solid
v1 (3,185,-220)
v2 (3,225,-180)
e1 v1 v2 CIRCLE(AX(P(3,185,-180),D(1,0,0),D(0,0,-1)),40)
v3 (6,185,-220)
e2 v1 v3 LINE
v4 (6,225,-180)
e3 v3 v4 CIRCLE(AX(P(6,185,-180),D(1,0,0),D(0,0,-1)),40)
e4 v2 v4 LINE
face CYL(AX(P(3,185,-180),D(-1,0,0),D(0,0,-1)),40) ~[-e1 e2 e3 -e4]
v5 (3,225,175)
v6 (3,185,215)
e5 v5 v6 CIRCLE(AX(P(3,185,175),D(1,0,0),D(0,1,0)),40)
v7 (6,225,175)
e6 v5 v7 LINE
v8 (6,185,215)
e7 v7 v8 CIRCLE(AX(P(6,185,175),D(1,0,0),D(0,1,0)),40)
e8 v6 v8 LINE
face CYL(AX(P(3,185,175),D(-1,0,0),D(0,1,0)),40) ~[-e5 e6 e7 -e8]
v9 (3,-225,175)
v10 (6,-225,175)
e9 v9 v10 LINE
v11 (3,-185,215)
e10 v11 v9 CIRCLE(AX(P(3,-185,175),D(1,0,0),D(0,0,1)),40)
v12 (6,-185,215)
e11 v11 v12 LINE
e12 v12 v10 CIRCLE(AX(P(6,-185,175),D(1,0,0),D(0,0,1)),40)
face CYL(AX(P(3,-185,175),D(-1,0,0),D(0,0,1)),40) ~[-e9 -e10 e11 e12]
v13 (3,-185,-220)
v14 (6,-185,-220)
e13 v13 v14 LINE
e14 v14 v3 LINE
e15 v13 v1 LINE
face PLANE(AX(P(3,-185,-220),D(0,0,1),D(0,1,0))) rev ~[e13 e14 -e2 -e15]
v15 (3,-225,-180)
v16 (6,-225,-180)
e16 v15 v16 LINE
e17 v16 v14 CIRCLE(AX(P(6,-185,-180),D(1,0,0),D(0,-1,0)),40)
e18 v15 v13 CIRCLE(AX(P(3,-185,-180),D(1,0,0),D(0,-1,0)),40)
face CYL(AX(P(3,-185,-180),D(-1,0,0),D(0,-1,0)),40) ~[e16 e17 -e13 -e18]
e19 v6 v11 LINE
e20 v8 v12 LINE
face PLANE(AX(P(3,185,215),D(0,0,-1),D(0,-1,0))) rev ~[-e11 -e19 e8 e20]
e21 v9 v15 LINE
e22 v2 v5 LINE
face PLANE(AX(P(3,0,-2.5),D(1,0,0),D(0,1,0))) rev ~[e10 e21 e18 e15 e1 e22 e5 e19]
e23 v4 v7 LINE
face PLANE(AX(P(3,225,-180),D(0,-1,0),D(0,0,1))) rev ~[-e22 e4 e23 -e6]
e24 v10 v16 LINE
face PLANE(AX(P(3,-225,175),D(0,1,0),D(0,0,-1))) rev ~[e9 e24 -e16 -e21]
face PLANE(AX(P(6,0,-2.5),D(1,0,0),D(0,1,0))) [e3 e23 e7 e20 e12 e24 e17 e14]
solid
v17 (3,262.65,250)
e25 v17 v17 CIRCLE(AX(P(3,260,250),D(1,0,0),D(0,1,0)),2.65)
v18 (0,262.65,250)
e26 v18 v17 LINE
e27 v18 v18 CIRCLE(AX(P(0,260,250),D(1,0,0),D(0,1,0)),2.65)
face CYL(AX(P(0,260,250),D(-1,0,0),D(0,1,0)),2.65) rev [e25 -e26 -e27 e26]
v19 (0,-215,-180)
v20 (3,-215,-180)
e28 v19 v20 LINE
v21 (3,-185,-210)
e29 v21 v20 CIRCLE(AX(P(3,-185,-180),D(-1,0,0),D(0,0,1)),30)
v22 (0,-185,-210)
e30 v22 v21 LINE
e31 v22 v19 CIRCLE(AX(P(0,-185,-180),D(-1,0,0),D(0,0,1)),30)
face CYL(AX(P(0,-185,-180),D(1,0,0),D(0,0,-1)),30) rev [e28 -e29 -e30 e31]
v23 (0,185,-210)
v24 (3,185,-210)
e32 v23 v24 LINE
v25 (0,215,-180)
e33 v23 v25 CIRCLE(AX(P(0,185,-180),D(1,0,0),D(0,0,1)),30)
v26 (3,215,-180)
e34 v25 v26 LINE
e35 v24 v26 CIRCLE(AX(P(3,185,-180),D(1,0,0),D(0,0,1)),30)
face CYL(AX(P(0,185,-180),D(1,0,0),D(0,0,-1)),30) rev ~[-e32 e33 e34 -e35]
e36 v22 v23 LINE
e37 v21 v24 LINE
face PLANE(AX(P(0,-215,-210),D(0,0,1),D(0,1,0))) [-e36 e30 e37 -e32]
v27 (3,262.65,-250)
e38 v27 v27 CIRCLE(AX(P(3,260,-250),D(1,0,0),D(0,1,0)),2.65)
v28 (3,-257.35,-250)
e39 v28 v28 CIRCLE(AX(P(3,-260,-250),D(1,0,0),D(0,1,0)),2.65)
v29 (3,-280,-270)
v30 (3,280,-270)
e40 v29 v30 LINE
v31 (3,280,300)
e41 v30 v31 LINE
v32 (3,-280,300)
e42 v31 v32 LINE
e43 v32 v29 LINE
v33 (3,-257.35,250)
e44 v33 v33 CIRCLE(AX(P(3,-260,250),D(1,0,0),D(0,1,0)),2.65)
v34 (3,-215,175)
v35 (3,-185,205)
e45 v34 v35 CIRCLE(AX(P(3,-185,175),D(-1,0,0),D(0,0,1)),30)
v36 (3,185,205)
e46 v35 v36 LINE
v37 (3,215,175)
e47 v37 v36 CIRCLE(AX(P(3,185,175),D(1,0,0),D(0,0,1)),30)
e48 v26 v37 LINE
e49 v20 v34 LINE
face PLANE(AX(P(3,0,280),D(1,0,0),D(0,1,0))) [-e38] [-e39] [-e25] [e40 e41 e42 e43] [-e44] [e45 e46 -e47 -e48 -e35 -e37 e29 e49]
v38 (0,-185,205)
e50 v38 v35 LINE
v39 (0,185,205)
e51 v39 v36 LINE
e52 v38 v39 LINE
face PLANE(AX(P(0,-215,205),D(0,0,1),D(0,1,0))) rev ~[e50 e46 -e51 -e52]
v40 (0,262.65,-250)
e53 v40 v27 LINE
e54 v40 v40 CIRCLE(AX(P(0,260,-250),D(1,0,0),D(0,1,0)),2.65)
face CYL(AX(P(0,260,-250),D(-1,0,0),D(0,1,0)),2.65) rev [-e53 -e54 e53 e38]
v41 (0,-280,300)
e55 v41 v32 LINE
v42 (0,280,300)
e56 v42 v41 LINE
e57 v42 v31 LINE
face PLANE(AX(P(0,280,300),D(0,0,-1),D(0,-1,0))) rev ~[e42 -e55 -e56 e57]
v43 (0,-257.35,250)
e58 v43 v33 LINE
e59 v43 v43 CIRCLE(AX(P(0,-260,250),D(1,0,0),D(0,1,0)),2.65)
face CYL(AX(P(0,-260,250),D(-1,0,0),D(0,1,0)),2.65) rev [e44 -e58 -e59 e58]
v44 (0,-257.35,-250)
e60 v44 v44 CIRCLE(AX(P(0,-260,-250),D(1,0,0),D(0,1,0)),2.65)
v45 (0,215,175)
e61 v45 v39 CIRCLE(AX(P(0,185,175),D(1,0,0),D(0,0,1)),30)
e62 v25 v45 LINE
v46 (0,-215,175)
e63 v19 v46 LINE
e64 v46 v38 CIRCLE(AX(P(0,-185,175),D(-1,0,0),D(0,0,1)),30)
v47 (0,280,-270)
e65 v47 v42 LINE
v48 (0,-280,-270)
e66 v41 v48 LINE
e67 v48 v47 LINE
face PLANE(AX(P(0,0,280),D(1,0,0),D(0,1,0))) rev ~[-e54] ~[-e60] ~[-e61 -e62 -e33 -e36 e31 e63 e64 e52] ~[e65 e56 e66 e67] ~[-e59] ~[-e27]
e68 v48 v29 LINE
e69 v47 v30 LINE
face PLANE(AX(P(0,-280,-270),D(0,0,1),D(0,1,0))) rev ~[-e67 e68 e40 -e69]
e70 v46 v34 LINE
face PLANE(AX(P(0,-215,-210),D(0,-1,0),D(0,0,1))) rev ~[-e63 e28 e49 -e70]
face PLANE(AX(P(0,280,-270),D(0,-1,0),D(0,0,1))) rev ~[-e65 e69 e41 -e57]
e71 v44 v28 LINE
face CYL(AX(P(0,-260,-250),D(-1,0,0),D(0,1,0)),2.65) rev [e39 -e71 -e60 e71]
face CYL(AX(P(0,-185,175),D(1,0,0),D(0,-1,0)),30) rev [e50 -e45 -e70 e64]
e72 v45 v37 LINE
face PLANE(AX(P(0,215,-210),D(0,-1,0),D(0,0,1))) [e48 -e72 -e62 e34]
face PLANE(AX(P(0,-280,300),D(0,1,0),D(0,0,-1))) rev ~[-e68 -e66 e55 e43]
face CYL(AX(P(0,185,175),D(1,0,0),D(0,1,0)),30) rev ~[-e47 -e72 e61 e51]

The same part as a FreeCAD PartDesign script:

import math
import FreeCAD as App
import Part
import Sketcher
Q = App.Units.Quantity


def edges_at(feature, points):
    """Names of the edges that pass closest to the given points."""
    edges = feature.Shape.Edges
    near = lambda p: min(range(len(edges)), key=lambda i: edges[i].distToShape(Part.Vertex(*p))[0])
    return sorted({f"Edge{near(p) + 1}" for p in points})

doc = App.newDocument("Part")
body = doc.addObject("PartDesign::Body", "Body")

# Sketch on YZ plane
sketch1 = body.newObject("Sketcher::SketchObject", "Sketch")
sketch1.AttachmentSupport = (doc.getObject("YZ_Plane"), [""])
sketch1.MapMode = "FlatFace"
sketch1.addGeometry([
    Part.LineSegment(App.Vector(-280, 300, 0), App.Vector(-280, -270, 0)),  # 0
    Part.LineSegment(App.Vector(-280, -270, 0), App.Vector(280, -270, 0)),  # 1
    Part.LineSegment(App.Vector(280, -270, 0), App.Vector(280, 300, 0)),  # 2
    Part.LineSegment(App.Vector(280, 300, 0), App.Vector(-280, 300, 0)),  # 3
    Part.Circle(App.Vector(-260, -250, 0), App.Vector(0, 0, 1), 2.65),  # 4
    Part.Circle(App.Vector(260, -250, 0), App.Vector(0, 0, 1), 2.65),  # 5
    Part.LineSegment(App.Vector(215, -210, 0), App.Vector(-215, -210, 0)),  # 6
    Part.LineSegment(App.Vector(-215, -210, 0), App.Vector(-215, 205, 0)),  # 7
    Part.LineSegment(App.Vector(-215, 205, 0), App.Vector(215, 205, 0)),  # 8
    Part.LineSegment(App.Vector(215, 205, 0), App.Vector(215, -210, 0)),  # 9
    Part.Circle(App.Vector(-260, 250, 0), App.Vector(0, 0, 1), 2.65),  # 10
    Part.Circle(App.Vector(260, 250, 0), App.Vector(0, 0, 1), 2.65),  # 11
], False)
sketch1.addConstraint([
    Sketcher.Constraint("Coincident", 0, 2, 1, 1),
    Sketcher.Constraint("Coincident", 1, 2, 2, 1),
    Sketcher.Constraint("Coincident", 2, 2, 3, 1),
    Sketcher.Constraint("Coincident", 3, 2, 0, 1),
    Sketcher.Constraint("Coincident", 6, 2, 7, 1),
    Sketcher.Constraint("Coincident", 7, 2, 8, 1),
    Sketcher.Constraint("Coincident", 8, 2, 9, 1),
    Sketcher.Constraint("Coincident", 9, 2, 6, 1),
    Sketcher.Constraint("Vertical", 0),
    Sketcher.Constraint("Horizontal", 1),
    Sketcher.Constraint("Vertical", 2),
    Sketcher.Constraint("Horizontal", 3),
    Sketcher.Constraint("Horizontal", 6),
    Sketcher.Constraint("Vertical", 7),
    Sketcher.Constraint("Horizontal", 8),
    Sketcher.Constraint("Vertical", 9),
    Sketcher.Constraint("Equal", 4, 5),
    Sketcher.Constraint("Equal", 5, 10),
    Sketcher.Constraint("Equal", 10, 11),
    Sketcher.Constraint("Symmetric", 5, 3, 10, 3, -1, 1),
    Sketcher.Constraint("Symmetric", 4, 3, 11, 3, -1, 1),
    Sketcher.Constraint("Symmetric", 4, 3, 5, 3, -2),
    Sketcher.Constraint("Diameter", 4, Q("5.3 mm")),
    Sketcher.Constraint("DistanceX", 1, 1, 1, 2, Q("560 mm")),
    Sketcher.Constraint("DistanceX", 6, 2, 6, 1, Q("430 mm")),
    Sketcher.Constraint("DistanceY", 0, 2, 0, 1, Q("570 mm")),
    Sketcher.Constraint("DistanceY", 7, 1, 7, 2, Q("415 mm")),
    Sketcher.Constraint("DistanceX", 4, 3, -1, 1, Q("260 mm")),
    Sketcher.Constraint("DistanceY", 4, 3, -1, 1, Q("250 mm")),
    Sketcher.Constraint("DistanceX", 0, 2, -1, 1, Q("280 mm")),
    Sketcher.Constraint("DistanceY", 0, 2, -1, 1, Q("270 mm")),
    Sketcher.Constraint("DistanceX", 6, 2, -1, 1, Q("215 mm")),
    Sketcher.Constraint("DistanceY", 6, 2, -1, 1, Q("210 mm")),
])
pad1 = body.newObject("PartDesign::Pad", "Pad")
pad1.Profile = sketch1
pad1.Length = 3
doc.recompute()

fillet = body.newObject("PartDesign::Fillet", "Fillet")
fillet.Base = (pad1, edges_at(pad1, [
    (1.5, -215, 205),
    (1.5, 215, 205),
    (1.5, 215, -210),
    (1.5, -215, -210),
]))
fillet.Radius = 30
body2 = doc.addObject("PartDesign::Body", "Body001")

# Sketch on YZ plane
sketch2 = body2.newObject("Sketcher::SketchObject", "Sketch001")
sketch2.AttachmentSupport = (doc.getObject("YZ_Plane001"), [""])
sketch2.MapMode = "FlatFace"
sketch2.AttachmentOffset = App.Placement(App.Vector(0, 0, 3), App.Rotation())
sketch2.addGeometry([
    Part.ArcOfCircle(Part.Circle(App.Vector(-185, -180, 0), App.Vector(0, 0, 1), 40), math.radians(180), math.radians(270)),  # 0
    Part.LineSegment(App.Vector(-185, -220, 0), App.Vector(185, -220, 0)),  # 1
    Part.ArcOfCircle(Part.Circle(App.Vector(185, -180, 0), App.Vector(0, 0, 1), 40), math.radians(-90), math.radians(0)),  # 2
    Part.LineSegment(App.Vector(225, -180, 0), App.Vector(225, 175, 0)),  # 3
    Part.ArcOfCircle(Part.Circle(App.Vector(185, 175, 0), App.Vector(0, 0, 1), 40), math.radians(0), math.radians(90)),  # 4
    Part.LineSegment(App.Vector(185, 215, 0), App.Vector(-185, 215, 0)),  # 5
    Part.ArcOfCircle(Part.Circle(App.Vector(-185, 175, 0), App.Vector(0, 0, 1), 40), math.radians(90), math.radians(180)),  # 6
    Part.LineSegment(App.Vector(-225, 175, 0), App.Vector(-225, -180, 0)),  # 7
], False)
sketch2.addConstraint([
    Sketcher.Constraint("Tangent", 0, 2, 1, 1),
    Sketcher.Constraint("Tangent", 1, 2, 2, 1),
    Sketcher.Constraint("Tangent", 2, 2, 3, 1),
    Sketcher.Constraint("Tangent", 3, 2, 4, 1),
    Sketcher.Constraint("Tangent", 4, 2, 5, 1),
    Sketcher.Constraint("Tangent", 5, 2, 6, 1),
    Sketcher.Constraint("Tangent", 6, 2, 7, 1),
    Sketcher.Constraint("Tangent", 7, 2, 0, 1),
    Sketcher.Constraint("Horizontal", 1),
    Sketcher.Constraint("Vertical", 3),
    Sketcher.Constraint("Horizontal", 5),
    Sketcher.Constraint("Vertical", 7),
    Sketcher.Constraint("Equal", 0, 2),
    Sketcher.Constraint("Equal", 2, 4),
    Sketcher.Constraint("Equal", 4, 6),
    Sketcher.Constraint("Radius", 0, Q("40 mm")),
    Sketcher.Constraint("DistanceX", 1, 1, 1, 2, Q("370 mm")),
    Sketcher.Constraint("DistanceY", 3, 1, 3, 2, Q("355 mm")),
    Sketcher.Constraint("DistanceX", 0, 3, -1, 1, Q("185 mm")),
    Sketcher.Constraint("DistanceY", 0, 3, -1, 1, Q("180 mm")),
])
pad2 = body2.newObject("PartDesign::Pad", "Pad001")
pad2.Profile = sketch2
pad2.Length = 3

doc.recompute()
